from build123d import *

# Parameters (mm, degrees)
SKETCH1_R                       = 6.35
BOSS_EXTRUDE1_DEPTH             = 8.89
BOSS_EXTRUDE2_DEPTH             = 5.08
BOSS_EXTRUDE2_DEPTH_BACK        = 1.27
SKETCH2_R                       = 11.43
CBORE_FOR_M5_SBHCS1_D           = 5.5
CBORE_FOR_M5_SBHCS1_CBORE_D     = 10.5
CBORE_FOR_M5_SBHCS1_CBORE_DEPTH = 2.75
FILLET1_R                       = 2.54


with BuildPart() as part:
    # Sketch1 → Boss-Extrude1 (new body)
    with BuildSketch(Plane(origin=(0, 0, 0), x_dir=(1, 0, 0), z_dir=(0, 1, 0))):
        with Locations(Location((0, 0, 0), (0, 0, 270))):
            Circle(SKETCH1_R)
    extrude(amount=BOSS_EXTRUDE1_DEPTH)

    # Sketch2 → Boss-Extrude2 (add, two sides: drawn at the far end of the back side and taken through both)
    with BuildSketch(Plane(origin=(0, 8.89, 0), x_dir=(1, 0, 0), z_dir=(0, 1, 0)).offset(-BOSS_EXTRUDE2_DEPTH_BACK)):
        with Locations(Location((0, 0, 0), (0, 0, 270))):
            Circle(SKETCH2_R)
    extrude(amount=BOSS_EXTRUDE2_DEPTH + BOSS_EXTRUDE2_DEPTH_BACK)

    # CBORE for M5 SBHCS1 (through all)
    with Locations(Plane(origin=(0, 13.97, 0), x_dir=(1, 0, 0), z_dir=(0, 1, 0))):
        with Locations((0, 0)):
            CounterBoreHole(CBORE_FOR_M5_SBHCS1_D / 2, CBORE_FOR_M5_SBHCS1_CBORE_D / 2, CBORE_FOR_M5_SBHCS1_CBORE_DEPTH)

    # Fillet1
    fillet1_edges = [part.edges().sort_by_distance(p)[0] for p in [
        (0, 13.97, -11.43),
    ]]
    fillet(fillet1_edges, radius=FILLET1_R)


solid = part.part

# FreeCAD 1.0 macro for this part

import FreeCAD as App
import Part
import Sketcher

V = App.Vector
Q = App.Units.Quantity


def edges_at(feature, points):
    """Names of the edges that pass closest to the given points."""
    edges = feature.Shape.Edges
    near = lambda p: min(range(len(edges)), key=lambda i: edges[i].distToShape(Part.Vertex(*p))[0])
    return sorted({f"Edge{near(p) + 1}" for p in points})

doc = App.newDocument("Part")
body = doc.addObject("PartDesign::Body", "Body")

# Sketch on XZ plane
sketch1 = body.newObject("Sketcher::SketchObject", "Sketch")
sketch1.AttachmentSupport = (doc.getObject("XZ_Plane"), [""])
sketch1.MapMode = "FlatFace"
sketch1.addGeometry(Part.Circle(V(0, 0, 0), V(0, 0, 1), 6), False)
sketch1.addConstraint([
    Sketcher.Constraint("Coincident", 0, 3, -1, 1),
    Sketcher.Constraint("Diameter", 0, Q("0.5 in")),
])
pad1 = body.newObject("PartDesign::Pad", "Pad")
pad1.Profile = sketch1
pad1.Length = Q("0.35 in")
pad1.Reversed = True

# Sketch on XZ plane
sketch2 = body.newObject("Sketcher::SketchObject", "Sketch001")
sketch2.AttachmentSupport = (doc.getObject("XZ_Plane"), [""])
sketch2.MapMode = "FlatFace"
sketch2.AttachmentOffset = App.Placement(V(0, 0, -0.35 * 25.4), App.Rotation())
sketch2.addGeometry(Part.Circle(V(0, 0, 0), V(0, 0, 1), 11), False)
sketch2.addConstraint([
    Sketcher.Constraint("Coincident", 0, 3, -1, 1),
    Sketcher.Constraint("Diameter", 0, Q("0.9 in")),
])
pad2 = body.newObject("PartDesign::Pad", "Pad001")
pad2.Profile = sketch2
pad2.Type = "TwoLengths"
pad2.Length = Q("0.2 in")
pad2.Length2 = Q("0.05 in")
pad2.Reversed = True

# Sketch on XZ plane
sketch3 = body.newObject("Sketcher::SketchObject", "Sketch002")
sketch3.AttachmentSupport = (doc.getObject("XZ_Plane"), [""])
sketch3.MapMode = "FlatFace"
sketch3.AttachmentOffset = App.Placement(V(0, 0, -0.55 * 25.4), App.Rotation())
sketch3.addGeometry(Part.Circle(V(0, 0, 0), V(0, 0, 1), 2.8), False)
sketch3.addConstraint([
    Sketcher.Constraint("Coincident", 0, 3, -1, 1),
    Sketcher.Constraint("Diameter", 0, Q("5.5 mm")),
])
doc.recompute()
hole = body.newObject("PartDesign::Hole", "Hole")
hole.Profile = sketch3
hole.ThreadType = "None"
hole.Diameter = 5.5
hole.DepthType = "ThroughAll"
hole.HoleCutType = "Counterbore"
hole.HoleCutDiameter = 10.5
hole.HoleCutDepth = 2.75
hole.Reversed = True
doc.recompute()

fillet = body.newObject("PartDesign::Fillet", "Fillet")
fillet.Base = (hole, edges_at(hole, [(0, 13.97, -11.43)]))
fillet.Radius = Q("0.1 in")

doc.recompute()
